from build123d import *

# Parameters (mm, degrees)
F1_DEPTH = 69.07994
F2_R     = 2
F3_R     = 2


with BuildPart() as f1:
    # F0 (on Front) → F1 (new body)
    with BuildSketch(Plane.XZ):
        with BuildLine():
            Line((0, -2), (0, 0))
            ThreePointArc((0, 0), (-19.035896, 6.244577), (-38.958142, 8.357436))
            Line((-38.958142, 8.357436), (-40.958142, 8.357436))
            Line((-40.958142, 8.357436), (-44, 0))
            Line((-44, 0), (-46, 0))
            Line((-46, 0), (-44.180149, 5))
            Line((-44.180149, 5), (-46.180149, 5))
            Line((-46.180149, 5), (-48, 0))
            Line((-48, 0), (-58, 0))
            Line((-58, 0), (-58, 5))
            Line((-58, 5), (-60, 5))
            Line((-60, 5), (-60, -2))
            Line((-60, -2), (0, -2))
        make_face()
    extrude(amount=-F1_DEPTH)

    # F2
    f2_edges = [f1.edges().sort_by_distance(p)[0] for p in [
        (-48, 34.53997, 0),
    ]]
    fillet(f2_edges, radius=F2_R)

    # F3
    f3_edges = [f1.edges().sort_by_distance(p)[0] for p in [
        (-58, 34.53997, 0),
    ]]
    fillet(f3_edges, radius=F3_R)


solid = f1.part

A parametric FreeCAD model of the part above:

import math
import FreeCAD as App
import Part
import Sketcher
Q = App.Units.Quantity


def edges_at(feature, points):
    """Names of the edges that pass closest to the given points."""
    edges = feature.Shape.Edges
    near = lambda p: min(range(len(edges)), key=lambda i: edges[i].distToShape(Part.Vertex(*p))[0])
    return sorted({f"Edge{near(p) + 1}" for p in points})

doc = App.newDocument("Part")
body = doc.addObject("PartDesign::Body", "Body")

sketch1 = body.newObject("Sketcher::SketchObject", "Sketch")
sketch1.AttachmentSupport = (doc.getObject("XZ_Plane"), [""])
sketch1.MapMode = "FlatFace"
sketch1.addGeometry([
    Part.LineSegment(App.Vector(0, -2, 0), App.Vector(0, 0, 0)),
    Part.ArcOfCircle(Part.Circle(App.Vector(-39, -86.6, 0), App.Vector(0, 0, 1), 95), math.radians(66), math.radians(90)),
    Part.LineSegment(App.Vector(-39, 8.4, 0), App.Vector(-41, 8.4, 0)),
    Part.LineSegment(App.Vector(-41, 8.4, 0), App.Vector(-44, 0, 0)),
    Part.LineSegment(App.Vector(-44, 0, 0), App.Vector(-46, 0, 0)),
    Part.LineSegment(App.Vector(-46, 0, 0), App.Vector(-44.2, 5, 0)),
    Part.LineSegment(App.Vector(-44.2, 5, 0), App.Vector(-46.2, 5, 0)),
    Part.LineSegment(App.Vector(-46.2, 5, 0), App.Vector(-48, 0, 0)),
    Part.LineSegment(App.Vector(-48, 0, 0), App.Vector(-58, 0, 0)),
    Part.LineSegment(App.Vector(-58, 0, 0), App.Vector(-58, 5, 0)),
    Part.LineSegment(App.Vector(-58, 5, 0), App.Vector(-60, 5, 0)),
    Part.LineSegment(App.Vector(-60, 5, 0), App.Vector(-60, -2, 0)),
    Part.LineSegment(App.Vector(-60, -2, 0), App.Vector(0, -2, 0)),
], False)
sketch1.addConstraint([
    Sketcher.Constraint("Coincident", 0, 2, 1, 1),
    Sketcher.Constraint("Tangent", 1, 2, 2, 1),
    Sketcher.Constraint("Coincident", 2, 2, 3, 1),
    Sketcher.Constraint("Coincident", 3, 2, 4, 1),
    Sketcher.Constraint("Coincident", 4, 2, 5, 1),
    Sketcher.Constraint("Coincident", 5, 2, 6, 1),
    Sketcher.Constraint("Coincident", 6, 2, 7, 1),
    Sketcher.Constraint("Coincident", 7, 2, 8, 1),
    Sketcher.Constraint("Coincident", 8, 2, 9, 1),
    Sketcher.Constraint("Coincident", 9, 2, 10, 1),
    Sketcher.Constraint("Coincident", 10, 2, 11, 1),
    Sketcher.Constraint("Coincident", 11, 2, 12, 1),
    Sketcher.Constraint("Coincident", 12, 2, 0, 1),
    Sketcher.Constraint("Vertical", 0),
    Sketcher.Constraint("Horizontal", 2),
    Sketcher.Constraint("Horizontal", 4),
    Sketcher.Constraint("Horizontal", 6),
    Sketcher.Constraint("Horizontal", 8),
    Sketcher.Constraint("Vertical", 9),
    Sketcher.Constraint("Horizontal", 10),
    Sketcher.Constraint("Vertical", 11),
    Sketcher.Constraint("Horizontal", 12),
    Sketcher.Constraint("Coincident", 0, 2, -1, 1),
    Sketcher.Constraint("PointOnObject", 3, 2, -1),
    Sketcher.Constraint("PointOnObject", 7, 2, -1),
    Sketcher.Constraint("Parallel", 3, 5),
    Sketcher.Constraint("Parallel", 5, 7),
    Sketcher.Constraint("Horizontal", 6, 2, 9, 2),
    Sketcher.Constraint("Equal", 2, 4),
    Sketcher.Constraint("Equal", 4, 6),
    Sketcher.Constraint("Equal", 6, 10),
    Sketcher.Constraint("Equal", 10, 0),
    Sketcher.Constraint("DistanceX", 2, 2, 2, 1, Q("2 mm")),
    Sketcher.Constraint("DistanceX", 8, 2, 8, 1, Q("10 mm")),
    Sketcher.Constraint("DistanceX", 12, 1, 12, 2, Q("60 mm")),
    Sketcher.Constraint("DistanceY", 9, 1, 9, 2, Q("5 mm")),
    Sketcher.Constraint("Angle", 3, Q("-110 deg")),
    Sketcher.Constraint("Radius", 1, Q("94.980279 mm")),
])
pad1 = body.newObject("PartDesign::Pad", "Pad")
pad1.Profile = sketch1
pad1.Length = 69.07994
pad1.Reversed = True
doc.recompute()

fillet = body.newObject("PartDesign::Fillet", "Fillet")
fillet.Base = (pad1, edges_at(pad1, [(-48, 34.54, 0)]))
fillet.Radius = 2
doc.recompute()

fillet2 = body.newObject("PartDesign::Fillet", "Fillet001")
fillet2.Base = (fillet, edges_at(fillet, [(-58, 34.54, 0)]))
fillet2.Radius = 2

doc.recompute()
